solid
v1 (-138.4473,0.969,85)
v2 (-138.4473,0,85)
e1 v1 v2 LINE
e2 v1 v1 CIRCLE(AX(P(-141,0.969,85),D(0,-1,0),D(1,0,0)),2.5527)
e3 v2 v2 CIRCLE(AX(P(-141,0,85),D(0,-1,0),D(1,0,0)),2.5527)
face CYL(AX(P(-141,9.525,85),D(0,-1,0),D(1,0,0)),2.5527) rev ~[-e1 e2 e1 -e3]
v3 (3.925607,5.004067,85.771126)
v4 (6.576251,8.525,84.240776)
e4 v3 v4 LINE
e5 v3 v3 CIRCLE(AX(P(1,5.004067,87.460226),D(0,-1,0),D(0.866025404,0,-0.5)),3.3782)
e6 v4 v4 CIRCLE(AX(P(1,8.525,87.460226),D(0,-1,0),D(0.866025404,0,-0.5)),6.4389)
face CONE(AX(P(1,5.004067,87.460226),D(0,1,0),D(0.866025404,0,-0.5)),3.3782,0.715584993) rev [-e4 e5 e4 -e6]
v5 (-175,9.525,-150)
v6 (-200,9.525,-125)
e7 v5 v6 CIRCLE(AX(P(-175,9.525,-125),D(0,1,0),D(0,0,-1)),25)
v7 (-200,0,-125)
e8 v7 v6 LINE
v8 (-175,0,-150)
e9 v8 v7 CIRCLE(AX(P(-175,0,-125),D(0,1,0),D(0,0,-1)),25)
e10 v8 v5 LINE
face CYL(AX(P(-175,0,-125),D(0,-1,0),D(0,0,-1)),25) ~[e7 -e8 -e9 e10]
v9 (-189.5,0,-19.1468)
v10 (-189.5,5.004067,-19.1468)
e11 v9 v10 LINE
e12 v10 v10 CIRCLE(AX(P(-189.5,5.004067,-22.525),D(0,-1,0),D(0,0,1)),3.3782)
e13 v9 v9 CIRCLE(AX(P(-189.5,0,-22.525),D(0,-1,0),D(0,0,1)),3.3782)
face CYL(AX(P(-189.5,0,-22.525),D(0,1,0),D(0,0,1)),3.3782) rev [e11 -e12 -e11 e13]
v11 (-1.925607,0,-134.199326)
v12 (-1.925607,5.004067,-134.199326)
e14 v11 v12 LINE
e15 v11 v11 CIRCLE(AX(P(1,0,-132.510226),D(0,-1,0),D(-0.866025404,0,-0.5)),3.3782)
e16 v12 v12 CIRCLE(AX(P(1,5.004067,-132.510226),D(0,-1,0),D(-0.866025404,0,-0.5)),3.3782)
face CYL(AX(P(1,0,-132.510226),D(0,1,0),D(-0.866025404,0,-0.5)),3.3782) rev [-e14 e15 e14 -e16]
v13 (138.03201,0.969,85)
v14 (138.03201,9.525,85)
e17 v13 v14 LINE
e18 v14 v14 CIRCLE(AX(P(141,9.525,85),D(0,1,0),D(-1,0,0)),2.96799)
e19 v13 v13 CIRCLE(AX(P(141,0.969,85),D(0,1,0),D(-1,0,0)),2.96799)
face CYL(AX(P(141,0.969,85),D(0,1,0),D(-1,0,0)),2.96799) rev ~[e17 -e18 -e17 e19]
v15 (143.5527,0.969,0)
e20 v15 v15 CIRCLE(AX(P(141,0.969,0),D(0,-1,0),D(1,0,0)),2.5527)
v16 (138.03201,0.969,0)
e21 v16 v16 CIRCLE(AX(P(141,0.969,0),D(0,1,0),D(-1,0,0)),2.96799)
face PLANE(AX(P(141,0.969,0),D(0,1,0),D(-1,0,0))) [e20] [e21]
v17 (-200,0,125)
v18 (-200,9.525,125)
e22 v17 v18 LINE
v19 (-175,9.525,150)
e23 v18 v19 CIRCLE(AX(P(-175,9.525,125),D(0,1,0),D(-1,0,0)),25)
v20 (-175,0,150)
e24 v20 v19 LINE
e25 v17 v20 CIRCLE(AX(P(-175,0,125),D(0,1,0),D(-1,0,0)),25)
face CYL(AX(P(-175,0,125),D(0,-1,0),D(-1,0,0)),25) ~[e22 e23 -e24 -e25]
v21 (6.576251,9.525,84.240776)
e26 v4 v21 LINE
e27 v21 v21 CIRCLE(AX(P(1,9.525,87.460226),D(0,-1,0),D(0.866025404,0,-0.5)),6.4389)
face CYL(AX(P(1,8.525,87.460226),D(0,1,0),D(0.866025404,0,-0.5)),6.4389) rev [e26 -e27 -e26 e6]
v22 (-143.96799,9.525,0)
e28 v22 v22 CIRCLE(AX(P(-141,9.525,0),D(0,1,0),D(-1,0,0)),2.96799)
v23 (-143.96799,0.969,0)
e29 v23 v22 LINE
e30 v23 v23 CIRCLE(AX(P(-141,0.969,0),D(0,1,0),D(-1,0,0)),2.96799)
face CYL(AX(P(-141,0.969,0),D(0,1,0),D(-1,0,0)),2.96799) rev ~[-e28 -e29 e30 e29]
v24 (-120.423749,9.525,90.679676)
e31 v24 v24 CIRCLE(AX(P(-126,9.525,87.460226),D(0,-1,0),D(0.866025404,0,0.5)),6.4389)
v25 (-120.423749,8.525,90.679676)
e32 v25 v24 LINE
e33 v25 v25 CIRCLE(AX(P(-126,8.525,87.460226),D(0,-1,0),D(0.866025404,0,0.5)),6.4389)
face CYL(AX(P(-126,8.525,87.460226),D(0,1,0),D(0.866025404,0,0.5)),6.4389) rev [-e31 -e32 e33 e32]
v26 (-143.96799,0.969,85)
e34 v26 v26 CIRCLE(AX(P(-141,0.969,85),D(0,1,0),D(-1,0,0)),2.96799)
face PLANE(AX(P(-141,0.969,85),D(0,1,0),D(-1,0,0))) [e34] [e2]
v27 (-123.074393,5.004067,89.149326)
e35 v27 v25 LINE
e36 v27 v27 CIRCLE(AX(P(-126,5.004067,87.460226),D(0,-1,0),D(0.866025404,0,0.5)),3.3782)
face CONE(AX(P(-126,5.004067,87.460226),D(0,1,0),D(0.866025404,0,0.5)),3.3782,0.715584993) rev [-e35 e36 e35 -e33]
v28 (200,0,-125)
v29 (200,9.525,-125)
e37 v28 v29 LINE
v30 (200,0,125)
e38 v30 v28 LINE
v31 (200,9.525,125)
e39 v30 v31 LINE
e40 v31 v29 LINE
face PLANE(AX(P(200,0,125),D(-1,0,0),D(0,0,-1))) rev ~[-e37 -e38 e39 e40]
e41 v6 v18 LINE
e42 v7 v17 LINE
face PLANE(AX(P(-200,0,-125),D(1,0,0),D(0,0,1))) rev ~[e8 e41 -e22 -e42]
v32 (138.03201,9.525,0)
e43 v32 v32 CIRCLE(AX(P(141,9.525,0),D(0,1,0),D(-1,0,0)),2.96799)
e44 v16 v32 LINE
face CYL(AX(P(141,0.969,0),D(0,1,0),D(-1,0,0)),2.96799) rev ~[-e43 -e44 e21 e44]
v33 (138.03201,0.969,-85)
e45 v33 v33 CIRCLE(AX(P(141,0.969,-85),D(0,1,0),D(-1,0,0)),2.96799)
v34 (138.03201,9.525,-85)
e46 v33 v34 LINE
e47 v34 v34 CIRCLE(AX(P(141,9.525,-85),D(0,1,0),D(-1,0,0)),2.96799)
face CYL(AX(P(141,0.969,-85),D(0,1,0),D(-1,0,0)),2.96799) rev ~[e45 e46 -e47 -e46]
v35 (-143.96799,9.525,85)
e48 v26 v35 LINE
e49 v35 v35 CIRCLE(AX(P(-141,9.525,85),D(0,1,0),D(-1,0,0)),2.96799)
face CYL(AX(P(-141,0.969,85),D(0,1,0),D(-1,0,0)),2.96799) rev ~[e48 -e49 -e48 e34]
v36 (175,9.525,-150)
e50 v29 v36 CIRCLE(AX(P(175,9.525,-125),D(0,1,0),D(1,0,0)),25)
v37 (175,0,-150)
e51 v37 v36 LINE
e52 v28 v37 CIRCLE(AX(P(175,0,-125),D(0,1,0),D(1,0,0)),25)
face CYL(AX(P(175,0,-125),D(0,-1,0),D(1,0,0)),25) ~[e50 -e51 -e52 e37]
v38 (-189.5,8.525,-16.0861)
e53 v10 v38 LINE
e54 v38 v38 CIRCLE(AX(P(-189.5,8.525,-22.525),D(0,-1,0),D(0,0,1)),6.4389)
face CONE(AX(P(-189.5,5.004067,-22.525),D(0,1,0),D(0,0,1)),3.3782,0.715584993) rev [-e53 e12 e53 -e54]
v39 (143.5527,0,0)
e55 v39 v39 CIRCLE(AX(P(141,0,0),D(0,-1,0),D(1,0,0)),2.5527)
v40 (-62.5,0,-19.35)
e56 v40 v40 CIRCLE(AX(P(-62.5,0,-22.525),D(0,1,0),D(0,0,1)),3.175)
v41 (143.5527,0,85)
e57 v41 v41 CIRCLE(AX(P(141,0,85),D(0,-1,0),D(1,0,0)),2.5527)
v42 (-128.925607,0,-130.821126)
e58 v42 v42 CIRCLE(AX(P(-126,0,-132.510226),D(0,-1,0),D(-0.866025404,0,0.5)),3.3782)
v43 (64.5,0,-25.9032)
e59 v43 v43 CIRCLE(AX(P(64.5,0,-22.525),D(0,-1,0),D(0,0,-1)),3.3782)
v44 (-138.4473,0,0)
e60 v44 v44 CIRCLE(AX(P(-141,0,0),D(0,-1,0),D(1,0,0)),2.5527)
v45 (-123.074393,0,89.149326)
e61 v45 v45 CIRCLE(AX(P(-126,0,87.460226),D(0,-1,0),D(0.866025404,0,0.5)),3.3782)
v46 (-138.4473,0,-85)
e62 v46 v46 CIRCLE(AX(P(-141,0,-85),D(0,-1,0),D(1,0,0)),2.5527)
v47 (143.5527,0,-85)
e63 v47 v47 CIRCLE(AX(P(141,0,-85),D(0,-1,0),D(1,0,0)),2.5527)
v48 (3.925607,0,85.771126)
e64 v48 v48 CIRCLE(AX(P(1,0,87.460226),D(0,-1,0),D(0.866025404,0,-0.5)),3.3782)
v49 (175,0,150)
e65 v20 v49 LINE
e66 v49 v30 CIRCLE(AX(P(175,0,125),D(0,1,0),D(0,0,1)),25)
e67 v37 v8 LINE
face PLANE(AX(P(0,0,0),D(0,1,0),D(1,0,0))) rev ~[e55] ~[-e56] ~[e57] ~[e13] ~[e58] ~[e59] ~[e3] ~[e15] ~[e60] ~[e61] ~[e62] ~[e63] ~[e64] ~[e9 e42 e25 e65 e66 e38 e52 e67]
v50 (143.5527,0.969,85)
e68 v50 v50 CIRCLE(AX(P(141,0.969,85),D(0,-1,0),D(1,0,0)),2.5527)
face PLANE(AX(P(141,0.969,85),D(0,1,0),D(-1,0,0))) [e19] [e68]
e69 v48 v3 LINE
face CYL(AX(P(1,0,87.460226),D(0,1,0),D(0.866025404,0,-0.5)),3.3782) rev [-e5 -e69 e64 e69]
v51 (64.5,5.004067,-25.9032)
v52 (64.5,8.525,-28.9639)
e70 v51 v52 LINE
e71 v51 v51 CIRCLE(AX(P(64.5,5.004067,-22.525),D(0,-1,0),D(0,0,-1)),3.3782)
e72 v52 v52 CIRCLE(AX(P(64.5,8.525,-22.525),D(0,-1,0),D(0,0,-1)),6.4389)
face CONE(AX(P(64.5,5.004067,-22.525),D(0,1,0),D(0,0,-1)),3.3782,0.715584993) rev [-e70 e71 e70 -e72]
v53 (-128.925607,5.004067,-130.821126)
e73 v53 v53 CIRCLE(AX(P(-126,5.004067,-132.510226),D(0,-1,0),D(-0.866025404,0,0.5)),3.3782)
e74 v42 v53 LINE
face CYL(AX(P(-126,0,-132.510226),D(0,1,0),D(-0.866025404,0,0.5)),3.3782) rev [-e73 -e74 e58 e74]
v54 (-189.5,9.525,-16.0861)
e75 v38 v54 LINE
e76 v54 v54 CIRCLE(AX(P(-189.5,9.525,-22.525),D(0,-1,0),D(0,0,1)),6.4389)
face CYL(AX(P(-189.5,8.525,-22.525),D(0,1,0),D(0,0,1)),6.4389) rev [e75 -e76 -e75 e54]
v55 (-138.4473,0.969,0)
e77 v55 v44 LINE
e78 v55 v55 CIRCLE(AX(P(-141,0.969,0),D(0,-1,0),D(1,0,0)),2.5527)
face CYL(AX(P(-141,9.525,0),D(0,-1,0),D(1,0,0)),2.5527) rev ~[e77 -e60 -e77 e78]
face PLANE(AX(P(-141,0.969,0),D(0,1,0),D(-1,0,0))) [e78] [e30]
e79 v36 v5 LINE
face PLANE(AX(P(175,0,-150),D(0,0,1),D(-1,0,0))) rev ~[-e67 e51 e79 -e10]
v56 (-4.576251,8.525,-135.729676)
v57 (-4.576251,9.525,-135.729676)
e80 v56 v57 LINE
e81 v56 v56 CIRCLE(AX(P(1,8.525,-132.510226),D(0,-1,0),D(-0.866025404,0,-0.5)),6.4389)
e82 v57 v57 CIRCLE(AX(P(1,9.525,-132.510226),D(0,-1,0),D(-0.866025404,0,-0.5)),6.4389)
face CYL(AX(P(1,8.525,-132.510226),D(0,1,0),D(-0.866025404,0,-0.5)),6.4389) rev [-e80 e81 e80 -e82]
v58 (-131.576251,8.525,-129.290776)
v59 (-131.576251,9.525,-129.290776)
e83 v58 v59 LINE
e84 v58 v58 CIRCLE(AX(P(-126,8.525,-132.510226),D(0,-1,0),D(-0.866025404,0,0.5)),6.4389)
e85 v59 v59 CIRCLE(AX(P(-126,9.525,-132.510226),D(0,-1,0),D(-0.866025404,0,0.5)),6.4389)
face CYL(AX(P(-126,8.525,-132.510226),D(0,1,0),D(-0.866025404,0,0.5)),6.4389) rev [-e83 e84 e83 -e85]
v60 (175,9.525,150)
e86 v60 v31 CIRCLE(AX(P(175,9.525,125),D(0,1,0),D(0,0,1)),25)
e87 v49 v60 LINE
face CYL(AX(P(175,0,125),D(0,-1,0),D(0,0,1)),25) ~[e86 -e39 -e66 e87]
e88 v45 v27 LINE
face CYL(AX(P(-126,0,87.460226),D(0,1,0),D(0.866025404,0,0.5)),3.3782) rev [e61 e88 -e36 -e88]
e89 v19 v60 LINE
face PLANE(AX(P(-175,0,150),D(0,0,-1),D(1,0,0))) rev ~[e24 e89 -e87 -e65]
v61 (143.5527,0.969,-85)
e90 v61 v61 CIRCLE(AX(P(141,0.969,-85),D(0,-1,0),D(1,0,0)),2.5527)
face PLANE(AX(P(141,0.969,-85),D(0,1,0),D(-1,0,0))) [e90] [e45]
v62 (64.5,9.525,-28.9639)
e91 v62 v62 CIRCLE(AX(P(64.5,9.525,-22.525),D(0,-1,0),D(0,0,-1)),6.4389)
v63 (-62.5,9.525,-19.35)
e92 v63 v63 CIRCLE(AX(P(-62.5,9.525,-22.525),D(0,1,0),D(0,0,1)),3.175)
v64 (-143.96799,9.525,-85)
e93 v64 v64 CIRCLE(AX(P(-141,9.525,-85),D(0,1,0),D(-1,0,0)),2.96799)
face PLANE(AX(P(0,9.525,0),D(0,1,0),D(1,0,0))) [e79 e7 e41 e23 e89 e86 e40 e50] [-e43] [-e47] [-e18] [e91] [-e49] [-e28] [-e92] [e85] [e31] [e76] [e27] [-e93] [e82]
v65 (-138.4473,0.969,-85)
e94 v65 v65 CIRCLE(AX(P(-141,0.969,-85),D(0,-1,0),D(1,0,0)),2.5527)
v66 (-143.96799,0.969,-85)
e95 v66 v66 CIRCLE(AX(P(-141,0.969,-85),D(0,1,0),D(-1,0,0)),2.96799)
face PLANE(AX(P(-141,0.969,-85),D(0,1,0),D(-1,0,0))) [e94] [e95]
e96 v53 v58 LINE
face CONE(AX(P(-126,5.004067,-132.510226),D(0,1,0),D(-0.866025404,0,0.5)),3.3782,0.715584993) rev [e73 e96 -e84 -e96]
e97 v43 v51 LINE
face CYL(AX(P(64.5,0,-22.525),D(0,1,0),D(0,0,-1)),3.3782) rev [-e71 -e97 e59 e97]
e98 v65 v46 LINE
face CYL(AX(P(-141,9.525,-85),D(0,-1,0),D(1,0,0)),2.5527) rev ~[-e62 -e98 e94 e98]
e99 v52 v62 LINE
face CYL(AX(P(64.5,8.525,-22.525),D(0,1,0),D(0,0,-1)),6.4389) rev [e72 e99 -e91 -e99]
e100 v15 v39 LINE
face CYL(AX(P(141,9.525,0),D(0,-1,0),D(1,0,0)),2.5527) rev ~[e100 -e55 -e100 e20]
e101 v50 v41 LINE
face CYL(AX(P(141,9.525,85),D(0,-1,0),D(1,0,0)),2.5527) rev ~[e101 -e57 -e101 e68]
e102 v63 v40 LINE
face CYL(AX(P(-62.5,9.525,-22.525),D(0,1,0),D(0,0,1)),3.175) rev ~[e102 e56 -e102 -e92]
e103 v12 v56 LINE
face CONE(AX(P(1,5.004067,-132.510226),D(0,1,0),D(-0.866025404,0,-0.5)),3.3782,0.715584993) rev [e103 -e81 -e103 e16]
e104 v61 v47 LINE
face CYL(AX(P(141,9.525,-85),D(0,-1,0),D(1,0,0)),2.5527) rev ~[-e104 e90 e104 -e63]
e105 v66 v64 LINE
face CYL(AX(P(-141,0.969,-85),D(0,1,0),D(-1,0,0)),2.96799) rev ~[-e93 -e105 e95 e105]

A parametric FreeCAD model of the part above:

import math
import FreeCAD as App
import Part
import Sketcher
Q = App.Units.Quantity


def add_polygon(sketch, points):
    """Adds a closed chain of lines whose ends are joined by coincident constraints."""
    first, n = sketch.GeometryCount, len(points)
    for a, b in zip(points, points[1:] + points[:1]):
        sketch.addGeometry(Part.LineSegment(App.Vector(*a, 0), App.Vector(*b, 0)), False)
    for i in range(n):
        sketch.addConstraint(Sketcher.Constraint("Coincident", first + i, 2, first + (i + 1) % n, 1))

doc = App.newDocument("Part")
body = doc.addObject("PartDesign::Body", "Body")

# Sketch on XZ plane
sketch1 = doc.addObject("Sketcher::SketchObject", "Sketch")
body.addObject(sketch1)
sketch1.AttachmentSupport = (doc.XZ_Plane, [""])
sketch1.MapMode = "FlatFace"
sketch1.addGeometry([
    Part.LineSegment(App.Vector(-175, 150, 0), App.Vector(175, 150, 0)),  # 0
    Part.ArcOfCircle(Part.Circle(App.Vector(175, 125, 0), App.Vector(0, 0, 1), 25), math.radians(0), math.radians(90)),  # 1
    Part.LineSegment(App.Vector(200, 125, 0), App.Vector(200, -125, 0)),  # 2
    Part.ArcOfCircle(Part.Circle(App.Vector(175, -125, 0), App.Vector(0, 0, 1), 25), math.radians(-90), math.radians(0)),  # 3
    Part.LineSegment(App.Vector(175, -150, 0), App.Vector(-175, -150, 0)),  # 4
    Part.ArcOfCircle(Part.Circle(App.Vector(-175, -125, 0), App.Vector(0, 0, 1), 25), math.radians(180), math.radians(270)),  # 5
    Part.LineSegment(App.Vector(-200, -125, 0), App.Vector(-200, 125, 0)),  # 6
    Part.ArcOfCircle(Part.Circle(App.Vector(-175, 125, 0), App.Vector(0, 0, 1), 25), math.radians(90), math.radians(180)),  # 7
], False)
sketch1.addConstraint([
    Sketcher.Constraint("Tangent", 0, 2, 1, 2),
    Sketcher.Constraint("Tangent", 1, 1, 2, 1),
    Sketcher.Constraint("Tangent", 2, 2, 3, 2),
    Sketcher.Constraint("Tangent", 3, 1, 4, 1),
    Sketcher.Constraint("Tangent", 4, 2, 5, 2),
    Sketcher.Constraint("Tangent", 5, 1, 6, 1),
    Sketcher.Constraint("Tangent", 6, 2, 7, 2),
    Sketcher.Constraint("Tangent", 7, 1, 0, 1),
    Sketcher.Constraint("Horizontal", 0),
    Sketcher.Constraint("Vertical", 2),
    Sketcher.Constraint("Horizontal", 4),
    Sketcher.Constraint("Vertical", 6),
    Sketcher.Constraint("Equal", 1, 3),
    Sketcher.Constraint("Equal", 3, 5),
    Sketcher.Constraint("Equal", 5, 7),
    Sketcher.Constraint("Symmetric", 1, 3, 5, 3, -1, 1),
    Sketcher.Constraint("Radius", 1, 25.0),
    Sketcher.Constraint("DistanceX", 0, 1, 0, 2, 350.0),
    Sketcher.Constraint("DistanceY", 2, 2, 2, 1, 250.0),
])
pad1 = doc.addObject("PartDesign::Pad", "Pad")
body.addObject(pad1)
pad1.Profile = sketch1
pad1.Length = 9.525
pad1.Reversed = True

# Sketch on XZ plane
sketch2 = doc.addObject("Sketcher::SketchObject", "Sketch001")
body.addObject(sketch2)
sketch2.AttachmentSupport = (doc.XZ_Plane, [""])
sketch2.MapMode = "FlatFace"
sketch2.AttachmentOffset = App.Placement(App.Vector(0, 0, -9.525), App.Rotation())
sketch2.addGeometry(Part.Circle(App.Vector(-62.5, -22.5, 0), App.Vector(0, 0, 1), 3.2), False)
sketch2.addConstraint([
    Sketcher.Constraint("Diameter", 0, 6.35),
    Sketcher.Constraint("DistanceX", 0, 3, -1, 1, 62.5),
    Sketcher.Constraint("DistanceY", 0, 3, -1, 1, 22.525),
])
pocket1 = doc.addObject("PartDesign::Pocket", "Pocket")
body.addObject(pocket1)
pocket1.Profile = sketch2
pocket1.Type = "ThroughAll"
pocket1.Reversed = True

# Sketch on YZ plane
sketch3 = doc.addObject("Sketcher::SketchObject", "Sketch002")
body.addObject(sketch3)
sketch3.AttachmentSupport = (doc.YZ_Plane, [""])
sketch3.MapMode = "FlatFace"
sketch3.AttachmentOffset = App.Placement(App.Vector(0, 0, -189.5), App.Rotation())
add_polygon(sketch3, [(0, -22.5), (9.5, -22.5), (9.5, -16.1), (8.5, -16.1), (5, -19.1), (0, -19.1)])  # lines 0-5
sketch3.addGeometry(Part.LineSegment(App.Vector(9.5, -22.5, 0), App.Vector(0, -22.5, 0)), True)  # axis
sketch3.addConstraint([
    Sketcher.Constraint("Horizontal", 0),
    Sketcher.Constraint("Vertical", 1),
    Sketcher.Constraint("Horizontal", 2),
    Sketcher.Constraint("Horizontal", 4),
    Sketcher.Constraint("Vertical", 5),
    Sketcher.Constraint("Horizontal", 6),
    Sketcher.Constraint("Coincident", 6, 1, 0, 2),
    Sketcher.Constraint("PointOnObject", 4, 2, -2),
    Sketcher.Constraint("PointOnObject", 6, 2, -2),
    Sketcher.Constraint("DistanceX", 2, 2, 2, 1, 1.0),
    Sketcher.Constraint("Angle", 3, Q("-139 deg")),
    Sketcher.Constraint("DistanceX", 0, 1, 0, 2, 9.525),
    Sketcher.Constraint("DistanceY", 1, 1, 1, 2, 6.4389),
    Sketcher.Constraint("DistanceY", 5, 2, 5, 1, 3.3782),
    Sketcher.Constraint("DistanceY", 0, 2, -1, 1, 22.525),
])
groove = doc.addObject("PartDesign::Groove", "Groove")
body.addObject(groove)
groove.Profile = sketch3
groove.ReferenceAxis = (sketch3, ["Axis0"])
groove.Angle = 360
doc.recompute()

datumline = doc.addObject("PartDesign::Line", "DatumLine")
body.addObject(datumline)
datumline.Placement = App.Placement(App.Vector(-62.5, 0, -22.525), App.Rotation(App.Vector(0, 0, 1), App.Vector(0, 1, 0)))
polarpattern = doc.addObject("PartDesign::PolarPattern", "PolarPattern")
body.addObject(polarpattern)
polarpattern.Originals = [groove]
polarpattern.Axis = (datumline, [""])
polarpattern.Angle = 360
polarpattern.Occurrences = 6
body.Tip = polarpattern

# Sketch on XZ plane
sketch4 = doc.addObject("Sketcher::SketchObject", "Sketch003")
body.addObject(sketch4)
sketch4.AttachmentSupport = (doc.XZ_Plane, [""])
sketch4.MapMode = "FlatFace"
sketch4.AttachmentOffset = App.Placement(App.Vector(0, 0, -9.525), App.Rotation())
sketch4.addGeometry([
    Part.Circle(App.Vector(141, 85, 0), App.Vector(0, 0, 1), 2.6),  # 0
    Part.Circle(App.Vector(-141, -85, 0), App.Vector(0, 0, 1), 2.6),  # 1
    Part.Circle(App.Vector(-141, 0, 0), App.Vector(0, 0, 1), 2.6),  # 2
    Part.Circle(App.Vector(-141, 85, 0), App.Vector(0, 0, 1), 2.6),  # 3
    Part.Circle(App.Vector(141, -85, 0), App.Vector(0, 0, 1), 2.6),  # 4
    Part.Circle(App.Vector(141, 0, 0), App.Vector(0, 0, 1), 2.6),  # 5
], False)
sketch4.addConstraint([
    Sketcher.Constraint("Equal", 0, 1),
    Sketcher.Constraint("Equal", 1, 2),
    Sketcher.Constraint("Equal", 2, 3),
    Sketcher.Constraint("Equal", 3, 4),
    Sketcher.Constraint("Equal", 4, 5),
    Sketcher.Constraint("Symmetric", 0, 3, 1, 3, -1, 1),
    Sketcher.Constraint("Symmetric", 3, 3, 4, 3, -1, 1),
    Sketcher.Constraint("Symmetric", 2, 3, 5, 3, -1, 1),
    Sketcher.Constraint("Symmetric", 0, 3, 3, 3, -2),
    Sketcher.Constraint("PointOnObject", 2, 3, -1),
    Sketcher.Constraint("Vertical", 1, 3, 2, 3),
    Sketcher.Constraint("DistanceX", -1, 1, 0, 3, 141.0),
    Sketcher.Constraint("DistanceY", -1, 1, 0, 3, 85.0),
    Sketcher.Constraint("Diameter", 0, 5.1054),
])
doc.recompute()
hole = doc.addObject("PartDesign::Hole", "Hole")
body.addObject(hole)
hole.Profile = sketch4
hole.ThreadType = "None"
hole.Diameter = 5.1054
hole.DepthType = "ThroughAll"
hole.HoleCutType = "Counterbore"
hole.HoleCutDiameter = 5.93598
hole.HoleCutDepth = 8.556
hole.Reversed = True

doc.recompute()
